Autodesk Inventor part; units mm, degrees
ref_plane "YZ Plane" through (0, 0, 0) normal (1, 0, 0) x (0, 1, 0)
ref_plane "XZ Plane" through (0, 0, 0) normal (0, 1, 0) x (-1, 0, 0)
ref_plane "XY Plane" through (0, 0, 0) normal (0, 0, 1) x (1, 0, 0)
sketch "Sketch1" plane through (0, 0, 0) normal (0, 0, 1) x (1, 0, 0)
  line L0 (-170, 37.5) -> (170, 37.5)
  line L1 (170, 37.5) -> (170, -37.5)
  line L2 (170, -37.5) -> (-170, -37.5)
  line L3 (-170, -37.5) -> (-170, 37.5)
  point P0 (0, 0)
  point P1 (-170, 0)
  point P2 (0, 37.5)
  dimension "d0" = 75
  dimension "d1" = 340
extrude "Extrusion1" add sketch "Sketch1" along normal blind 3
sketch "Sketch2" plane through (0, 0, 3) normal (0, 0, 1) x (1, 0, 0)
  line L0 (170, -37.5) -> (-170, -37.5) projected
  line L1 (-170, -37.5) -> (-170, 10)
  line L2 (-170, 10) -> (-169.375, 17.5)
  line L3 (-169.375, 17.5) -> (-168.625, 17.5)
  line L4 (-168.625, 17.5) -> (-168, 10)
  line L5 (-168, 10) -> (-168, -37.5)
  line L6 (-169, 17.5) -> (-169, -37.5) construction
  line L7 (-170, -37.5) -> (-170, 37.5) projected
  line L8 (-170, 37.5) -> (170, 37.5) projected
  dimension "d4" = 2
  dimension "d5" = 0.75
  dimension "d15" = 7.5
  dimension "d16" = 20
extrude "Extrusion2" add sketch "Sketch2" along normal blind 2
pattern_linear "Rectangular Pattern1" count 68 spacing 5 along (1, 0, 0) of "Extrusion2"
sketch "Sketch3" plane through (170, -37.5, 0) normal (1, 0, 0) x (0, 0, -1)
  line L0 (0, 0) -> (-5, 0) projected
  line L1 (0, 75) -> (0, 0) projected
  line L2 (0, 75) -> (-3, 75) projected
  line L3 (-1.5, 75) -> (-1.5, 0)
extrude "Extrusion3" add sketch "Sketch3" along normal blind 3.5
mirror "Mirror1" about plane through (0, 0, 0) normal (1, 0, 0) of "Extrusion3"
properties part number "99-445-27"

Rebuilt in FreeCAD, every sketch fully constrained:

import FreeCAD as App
import Part
import Sketcher


def add_polygon(sketch, points):
    """Adds a closed chain of lines whose ends are joined by coincident constraints."""
    first, n = sketch.GeometryCount, len(points)
    for a, b in zip(points, points[1:] + points[:1]):
        sketch.addGeometry(Part.LineSegment(App.Vector(*a, 0), App.Vector(*b, 0)), False)
    for i in range(n):
        sketch.addConstraint(Sketcher.Constraint("Coincident", first + i, 2, first + (i + 1) % n, 1))

doc = App.newDocument("Part")
body = doc.addObject("PartDesign::Body", "Body")

sketch1 = body.newObject("Sketcher::SketchObject", "Sketch")
sketch1.AttachmentSupport = (doc.getObject("XY_Plane"), [""])
sketch1.MapMode = "FlatFace"
add_polygon(sketch1, [(170, 37.5), (-170, 37.5), (-170, -37.5), (170, -37.5)])
sketch1.addConstraint([
    Sketcher.Constraint("Horizontal", 0),
    Sketcher.Constraint("Vertical", 1),
    Sketcher.Constraint("Horizontal", 2),
    Sketcher.Constraint("Vertical", 3),
    Sketcher.Constraint("Symmetric", 0, 2, 2, 2, -1, 1),
    Sketcher.Constraint("DistanceX", 0, 2, 0, 1, 340.0),
    Sketcher.Constraint("DistanceY", 1, 2, 1, 1, 75.0),
])
pad1 = body.newObject("PartDesign::Pad", "Pad")
pad1.Profile = sketch1
pad1.Length = 3

sketch2 = body.newObject("Sketcher::SketchObject", "Sketch001")
sketch2.AttachmentSupport = (doc.getObject("XY_Plane"), [""])
sketch2.MapMode = "FlatFace"
sketch2.AttachmentOffset = App.Placement(App.Vector(0, 0, 3), App.Rotation())
add_polygon(sketch2, [(-170, -37.5), (-168, -37.5), (-168, 10), (-168.625, 17.5), (-169.375, 17.5), (-170, 10)])
sketch2.addConstraint([
    Sketcher.Constraint("Horizontal", 0),
    Sketcher.Constraint("Vertical", 1),
    Sketcher.Constraint("Horizontal", 3),
    Sketcher.Constraint("Vertical", 5),
    Sketcher.Constraint("Horizontal", 1, 2, 4, 2),
    Sketcher.Constraint("Equal", 2, 4),
    Sketcher.Constraint("DistanceX", 0, 1, 0, 2, 2.0),
    Sketcher.Constraint("DistanceX", 3, 2, 3, 1, 0.75),
    Sketcher.Constraint("DistanceY", 1, 2, 2, 2, 7.5),
    Sketcher.Constraint("DistanceY", 1, 1, 1, 2, 47.5),
    Sketcher.Constraint("DistanceX", 0, 2, -1, 1, 168.0),
    Sketcher.Constraint("DistanceY", -1, 1, 1, 2, 10.0),
])
pad2 = body.newObject("PartDesign::Pad", "Pad001")
pad2.Profile = sketch2
pad2.Length = 2
doc.recompute()

linearpattern = body.newObject("PartDesign::LinearPattern", "LinearPattern")
linearpattern.Originals = [pad2]
linearpattern.Direction = (doc.getObject("X_Axis"), [""])
linearpattern.Mode = "offset"
linearpattern.Offset = 5
linearpattern.Occurrences = 68
body.Tip = linearpattern

sketch3 = body.newObject("Sketcher::SketchObject", "Sketch002")
sketch3.AttachmentSupport = (doc.getObject("YZ_Plane"), [""])
sketch3.MapMode = "FlatFace"
sketch3.AttachmentOffset = App.Placement(App.Vector(0, 0, 170), App.Rotation())
add_polygon(sketch3, [(-37.5, 1.5), (-37.5, 0), (37.5, 0), (37.5, 1.5)])
sketch3.addConstraint([
    Sketcher.Constraint("Vertical", 0),
    Sketcher.Constraint("Horizontal", 1),
    Sketcher.Constraint("Vertical", 2),
    Sketcher.Constraint("Horizontal", 3),
    Sketcher.Constraint("Symmetric", 0, 2, 1, 2, -1, 1),
    Sketcher.Constraint("DistanceX", 1, 1, 1, 2, 75.0),
    Sketcher.Constraint("DistanceY", 0, 2, 0, 1, 1.5),
])
pad3 = body.newObject("PartDesign::Pad", "Pad002")
pad3.Profile = sketch3
pad3.Length = 3.5
doc.recompute()

mirrored = body.newObject("PartDesign::Mirrored", "Mirrored")
mirrored.Originals = [pad3]
mirrored.MirrorPlane = (doc.getObject("YZ_Plane"), [""])
body.Tip = mirrored

doc.recompute()
